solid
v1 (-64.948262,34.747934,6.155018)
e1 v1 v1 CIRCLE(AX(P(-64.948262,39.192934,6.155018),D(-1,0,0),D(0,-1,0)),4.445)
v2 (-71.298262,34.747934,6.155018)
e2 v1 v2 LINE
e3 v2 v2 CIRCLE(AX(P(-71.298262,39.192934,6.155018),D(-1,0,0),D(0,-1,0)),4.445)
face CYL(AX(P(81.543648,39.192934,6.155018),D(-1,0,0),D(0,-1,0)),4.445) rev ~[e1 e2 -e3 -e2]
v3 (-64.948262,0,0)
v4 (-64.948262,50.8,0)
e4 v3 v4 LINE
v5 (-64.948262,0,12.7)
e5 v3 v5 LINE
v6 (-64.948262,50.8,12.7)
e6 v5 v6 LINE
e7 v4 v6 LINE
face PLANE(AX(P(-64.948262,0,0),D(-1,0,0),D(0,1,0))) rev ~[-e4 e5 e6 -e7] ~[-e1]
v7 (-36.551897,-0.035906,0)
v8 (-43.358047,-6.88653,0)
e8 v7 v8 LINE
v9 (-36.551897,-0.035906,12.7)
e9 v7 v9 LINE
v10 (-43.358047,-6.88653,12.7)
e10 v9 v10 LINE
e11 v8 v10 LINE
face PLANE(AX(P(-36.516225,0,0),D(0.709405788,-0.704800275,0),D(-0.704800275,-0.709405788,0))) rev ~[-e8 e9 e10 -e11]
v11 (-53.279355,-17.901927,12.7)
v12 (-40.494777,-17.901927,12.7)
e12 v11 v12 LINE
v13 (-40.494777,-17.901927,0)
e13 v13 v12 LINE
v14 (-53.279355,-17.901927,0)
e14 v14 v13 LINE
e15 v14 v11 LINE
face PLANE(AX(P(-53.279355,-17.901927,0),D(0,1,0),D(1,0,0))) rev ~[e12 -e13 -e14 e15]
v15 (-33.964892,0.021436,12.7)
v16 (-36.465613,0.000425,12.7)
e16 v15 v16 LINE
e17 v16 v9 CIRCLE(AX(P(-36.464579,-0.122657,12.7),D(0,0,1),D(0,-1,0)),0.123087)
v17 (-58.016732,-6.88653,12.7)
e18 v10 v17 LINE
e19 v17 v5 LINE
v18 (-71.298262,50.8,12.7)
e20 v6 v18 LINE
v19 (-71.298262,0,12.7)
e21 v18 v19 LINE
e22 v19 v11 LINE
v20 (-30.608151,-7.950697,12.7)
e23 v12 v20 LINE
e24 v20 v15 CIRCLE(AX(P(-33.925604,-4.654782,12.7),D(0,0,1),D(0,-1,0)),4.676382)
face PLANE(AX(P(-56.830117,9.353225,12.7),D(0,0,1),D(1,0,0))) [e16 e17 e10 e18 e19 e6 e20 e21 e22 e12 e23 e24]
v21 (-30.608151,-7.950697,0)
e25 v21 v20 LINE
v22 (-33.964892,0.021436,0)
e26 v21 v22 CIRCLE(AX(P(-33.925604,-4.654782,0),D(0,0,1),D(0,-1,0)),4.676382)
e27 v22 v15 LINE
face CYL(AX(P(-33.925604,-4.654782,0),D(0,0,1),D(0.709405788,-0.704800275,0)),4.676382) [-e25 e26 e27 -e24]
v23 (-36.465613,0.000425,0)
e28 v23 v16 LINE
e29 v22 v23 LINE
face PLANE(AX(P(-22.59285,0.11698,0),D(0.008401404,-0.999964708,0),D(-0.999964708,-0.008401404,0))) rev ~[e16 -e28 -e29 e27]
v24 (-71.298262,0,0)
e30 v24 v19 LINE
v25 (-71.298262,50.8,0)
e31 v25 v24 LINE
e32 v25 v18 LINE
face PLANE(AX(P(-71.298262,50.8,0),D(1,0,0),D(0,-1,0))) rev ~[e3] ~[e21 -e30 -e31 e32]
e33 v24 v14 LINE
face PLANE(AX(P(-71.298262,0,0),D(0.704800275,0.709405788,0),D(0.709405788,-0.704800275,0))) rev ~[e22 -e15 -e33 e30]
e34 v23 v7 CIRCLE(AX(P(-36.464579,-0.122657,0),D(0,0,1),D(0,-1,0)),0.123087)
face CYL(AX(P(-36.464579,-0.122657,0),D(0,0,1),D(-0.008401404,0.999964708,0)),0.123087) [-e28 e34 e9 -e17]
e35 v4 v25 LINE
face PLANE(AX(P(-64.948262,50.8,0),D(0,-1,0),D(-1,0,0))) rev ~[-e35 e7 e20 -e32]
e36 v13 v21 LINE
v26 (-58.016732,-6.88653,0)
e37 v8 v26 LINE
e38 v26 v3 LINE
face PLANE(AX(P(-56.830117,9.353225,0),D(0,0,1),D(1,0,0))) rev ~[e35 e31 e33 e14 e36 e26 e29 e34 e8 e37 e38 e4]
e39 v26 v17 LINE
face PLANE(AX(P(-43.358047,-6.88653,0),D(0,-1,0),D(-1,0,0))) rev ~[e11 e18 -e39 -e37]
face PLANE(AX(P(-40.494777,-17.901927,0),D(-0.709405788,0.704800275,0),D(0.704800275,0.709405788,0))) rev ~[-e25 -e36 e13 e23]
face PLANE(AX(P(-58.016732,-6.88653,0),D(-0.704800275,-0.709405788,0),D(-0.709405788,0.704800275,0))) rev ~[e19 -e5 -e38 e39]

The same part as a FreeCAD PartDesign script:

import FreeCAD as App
import Part
import Sketcher
Q = App.Units.Quantity


def edges_at(feature, points):
    """Names of the edges that pass closest to the given points."""
    edges = feature.Shape.Edges
    near = lambda p: min(range(len(edges)), key=lambda i: edges[i].distToShape(Part.Vertex(*p))[0])
    return sorted({f"Edge{near(p) + 1}" for p in points})


def add_polygon(sketch, points):
    """Adds a closed chain of lines whose ends are joined by coincident constraints."""
    first, n = sketch.GeometryCount, len(points)
    for a, b in zip(points, points[1:] + points[:1]):
        sketch.addGeometry(Part.LineSegment(App.Vector(*a, 0), App.Vector(*b, 0)), False)
    for i in range(n):
        sketch.addConstraint(Sketcher.Constraint("Coincident", first + i, 2, first + (i + 1) % n, 1))

doc = App.newDocument("Part")
body = doc.addObject("PartDesign::Body", "Body")

# Sketch on XY plane
sketch1 = doc.addObject("Sketcher::SketchObject", "Sketch")
body.addObject(sketch1)
sketch1.AttachmentSupport = (doc.XY_Plane, [""])
sketch1.MapMode = "FlatFace"
add_polygon(sketch1, [(-65, 51), (-71, 51), (-71, 0), (-53, -18), (-40, -18), (-23, 0), (-37, 0), (-43, -7), (-58, -7), (-65, 0)])  # lines 0-9
sketch1.addConstraint([
    Sketcher.Constraint("Horizontal", 0),
    Sketcher.Constraint("Vertical", 1),
    Sketcher.Constraint("Horizontal", 3),
    Sketcher.Constraint("Horizontal", 7),
    Sketcher.Constraint("Vertical", 9),
    Sketcher.Constraint("PointOnObject", 1, 2, -1),
    Sketcher.Constraint("PointOnObject", 5, 2, -1),
    Sketcher.Constraint("PointOnObject", 8, 2, -1),
    Sketcher.Constraint("Perpendicular", 2, 4),
    Sketcher.Constraint("Parallel", 4, 6),
    Sketcher.Constraint("Perpendicular", 6, 8),
    Sketcher.Constraint("Equal", 2, 4),
    Sketcher.Constraint("DistanceY", 1, 2, 1, 1, Q("2 in")),
    Sketcher.Constraint("Distance", 2, Q("1 in")),
    Sketcher.Constraint("DistanceX", 0, 2, 0, 1, Q("0.25 in")),
    Sketcher.Constraint("DistanceX", 3, 1, 3, 2, 12.784578),
    Sketcher.Constraint("DistanceX", 7, 2, 7, 1, 14.658686),
    Sketcher.Constraint("DistanceX", 4, 2, -1, 1, 22.59285),
    Sketcher.Constraint("DistanceY", -1, 1, 4, 2, 0.11698),
    Sketcher.Constraint("DistanceY", 6, 2, -1, 1, 6.88653),
])
pad1 = doc.addObject("PartDesign::Pad", "Pad")
body.addObject(pad1)
pad1.Profile = sketch1
pad1.Length = Q("0.5 in")
doc.recompute()

fillet = doc.addObject("PartDesign::Fillet", "Fillet")
body.addObject(fillet)
fillet.Base = (pad1, edges_at(pad1, [(-22.593, 0.117, 6.35)]))
fillet.Radius = 4.676382
doc.recompute()

fillet2 = doc.addObject("PartDesign::Fillet", "Fillet001")
body.addObject(fillet2)
fillet2.Base = (fillet, edges_at(fillet, [(-33.965, 0.021, 6.35), (-36.516, 0, 6.35)]))
fillet2.Radius = 0.123087

# Sketch on YZ plane
sketch2 = doc.addObject("Sketcher::SketchObject", "Sketch001")
body.addObject(sketch2)
sketch2.AttachmentSupport = (doc.YZ_Plane, [""])
sketch2.MapMode = "FlatFace"
sketch2.addGeometry(Part.Circle(App.Vector(39.2, 6.2, 0), App.Vector(0, 0, 1), 4.4), False)
sketch2.addConstraint([
    Sketcher.Constraint("Diameter", 0, Q("0.35 in")),
    Sketcher.Constraint("DistanceY", -1, 1, 0, 3, 6.155018),
    Sketcher.Constraint("DistanceX", -1, 1, 0, 3, 39.192934),
])
doc.recompute()
hole = doc.addObject("PartDesign::Hole", "Hole")
body.addObject(hole)
hole.Profile = sketch2
hole.ThreadType = "None"
hole.Diameter = Q("0.35 in")
hole.DepthType = "ThroughAll"

doc.recompute()
